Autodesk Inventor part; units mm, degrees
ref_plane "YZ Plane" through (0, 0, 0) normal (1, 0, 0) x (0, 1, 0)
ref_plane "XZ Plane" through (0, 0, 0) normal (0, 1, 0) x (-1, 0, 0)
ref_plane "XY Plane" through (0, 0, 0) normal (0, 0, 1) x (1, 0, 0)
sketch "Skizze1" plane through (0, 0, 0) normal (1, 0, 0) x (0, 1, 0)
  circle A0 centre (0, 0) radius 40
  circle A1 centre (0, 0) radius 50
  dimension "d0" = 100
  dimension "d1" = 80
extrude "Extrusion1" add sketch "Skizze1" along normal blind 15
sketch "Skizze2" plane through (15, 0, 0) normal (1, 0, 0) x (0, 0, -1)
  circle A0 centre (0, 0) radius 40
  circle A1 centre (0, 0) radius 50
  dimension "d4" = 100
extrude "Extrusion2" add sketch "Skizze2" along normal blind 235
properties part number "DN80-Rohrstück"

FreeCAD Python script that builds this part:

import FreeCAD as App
import Part
import Sketcher

V = App.Vector

doc = App.newDocument("Part")
body = doc.addObject("PartDesign::Body", "Body")

# Sketch on YZ plane
sketch1 = body.newObject("Sketcher::SketchObject", "Sketch")
sketch1.AttachmentSupport = (doc.getObject("YZ_Plane"), [""])
sketch1.MapMode = "FlatFace"
sketch1.addGeometry([
    Part.Circle(V(0, 0, 0), V(0, 0, 1), 50),
    Part.Circle(V(0, 0, 0), V(0, 0, 1), 40),
], False)
sketch1.addConstraint([
    Sketcher.Constraint("Coincident", 0, 3, -1, 1),
    Sketcher.Constraint("Coincident", 1, 3, -1, 1),
    Sketcher.Constraint("Diameter", 0, 100.0),
    Sketcher.Constraint("Diameter", 1, 80.0),
])
pad1 = body.newObject("PartDesign::Pad", "Pad")
pad1.Profile = sketch1
pad1.Length = 15

# Sketch on YZ plane
sketch2 = body.newObject("Sketcher::SketchObject", "Sketch001")
sketch2.AttachmentSupport = (doc.getObject("YZ_Plane"), [""])
sketch2.MapMode = "FlatFace"
sketch2.AttachmentOffset = App.Placement(V(0, 0, 15), App.Rotation())
sketch2.addGeometry([
    Part.Circle(V(0, 0, 0), V(0, 0, 1), 50),
    Part.Circle(V(0, 0, 0), V(0, 0, 1), 40),
], False)
sketch2.addConstraint([
    Sketcher.Constraint("Coincident", 0, 3, -1, 1),
    Sketcher.Constraint("Coincident", 1, 3, -1, 1),
    Sketcher.Constraint("Diameter", 0, 100.0),
    Sketcher.Constraint("Diameter", 1, 80.0),
])
pad2 = body.newObject("PartDesign::Pad", "Pad001")
pad2.Profile = sketch2
pad2.Length = 235

doc.recompute()
